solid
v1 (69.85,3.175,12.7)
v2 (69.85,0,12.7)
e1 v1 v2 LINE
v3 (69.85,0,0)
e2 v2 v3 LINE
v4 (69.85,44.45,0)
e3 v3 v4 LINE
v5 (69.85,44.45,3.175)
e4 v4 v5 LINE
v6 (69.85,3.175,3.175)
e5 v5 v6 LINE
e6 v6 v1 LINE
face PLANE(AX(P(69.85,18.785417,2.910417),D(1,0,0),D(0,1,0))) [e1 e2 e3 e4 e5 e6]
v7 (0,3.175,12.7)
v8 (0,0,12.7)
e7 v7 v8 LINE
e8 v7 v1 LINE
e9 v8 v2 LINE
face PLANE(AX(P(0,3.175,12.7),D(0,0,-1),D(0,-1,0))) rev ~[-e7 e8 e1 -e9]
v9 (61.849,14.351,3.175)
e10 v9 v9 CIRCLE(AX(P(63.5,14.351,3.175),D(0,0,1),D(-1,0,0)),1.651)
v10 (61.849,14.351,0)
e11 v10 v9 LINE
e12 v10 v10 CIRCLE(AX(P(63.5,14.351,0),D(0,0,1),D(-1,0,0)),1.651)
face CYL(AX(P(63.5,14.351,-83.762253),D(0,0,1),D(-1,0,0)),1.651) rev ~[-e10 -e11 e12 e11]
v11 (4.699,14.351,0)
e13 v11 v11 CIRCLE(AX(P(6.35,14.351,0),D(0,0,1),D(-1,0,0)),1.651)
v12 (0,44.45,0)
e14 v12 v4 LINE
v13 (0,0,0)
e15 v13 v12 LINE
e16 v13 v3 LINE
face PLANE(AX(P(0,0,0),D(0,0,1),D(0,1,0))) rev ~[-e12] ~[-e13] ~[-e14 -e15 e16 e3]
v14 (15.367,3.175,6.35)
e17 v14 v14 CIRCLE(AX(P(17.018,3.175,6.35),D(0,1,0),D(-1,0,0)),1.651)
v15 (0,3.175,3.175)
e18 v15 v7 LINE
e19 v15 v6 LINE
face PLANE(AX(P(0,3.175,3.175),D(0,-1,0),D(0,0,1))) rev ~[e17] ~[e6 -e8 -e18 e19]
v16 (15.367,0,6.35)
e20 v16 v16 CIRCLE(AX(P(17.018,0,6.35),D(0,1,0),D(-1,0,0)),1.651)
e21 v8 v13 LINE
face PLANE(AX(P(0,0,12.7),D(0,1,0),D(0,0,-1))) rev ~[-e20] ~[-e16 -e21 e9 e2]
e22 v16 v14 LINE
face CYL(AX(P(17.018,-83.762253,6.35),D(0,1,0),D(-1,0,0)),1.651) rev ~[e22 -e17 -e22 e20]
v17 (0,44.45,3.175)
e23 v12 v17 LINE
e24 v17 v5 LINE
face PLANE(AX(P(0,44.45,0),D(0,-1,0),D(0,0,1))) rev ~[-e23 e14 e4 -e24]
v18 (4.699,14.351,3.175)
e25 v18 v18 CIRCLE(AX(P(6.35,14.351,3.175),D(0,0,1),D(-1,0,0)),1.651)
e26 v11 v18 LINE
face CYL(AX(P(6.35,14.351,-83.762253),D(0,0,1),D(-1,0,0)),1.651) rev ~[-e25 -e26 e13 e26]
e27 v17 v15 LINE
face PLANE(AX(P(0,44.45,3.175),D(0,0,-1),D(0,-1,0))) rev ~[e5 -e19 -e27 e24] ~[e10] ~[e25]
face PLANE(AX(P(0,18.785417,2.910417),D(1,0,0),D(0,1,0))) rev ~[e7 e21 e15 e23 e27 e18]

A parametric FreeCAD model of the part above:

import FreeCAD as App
import Part
import Sketcher
from FreeCAD import Vector
Q = App.Units.Quantity

doc = App.newDocument("Part")
body = doc.addObject("PartDesign::Body", "Body")

# Sketch on YZ plane
sketch1 = body.newObject("Sketcher::SketchObject", "Sketch")
sketch1.AttachmentSupport = (doc.getObject("YZ_Plane"), [""])
sketch1.MapMode = "FlatFace"
sketch1.addGeometry([
    Part.LineSegment(Vector(0, 12.7, 0), Vector(0, 0, 0)),  # 0
    Part.LineSegment(Vector(0, 0, 0), Vector(44.5, 0, 0)),  # 1
    Part.LineSegment(Vector(44.5, 0, 0), Vector(44.5, 3.2, 0)),  # 2
    Part.LineSegment(Vector(44.5, 3.2, 0), Vector(3.2, 3.2, 0)),  # 3
    Part.LineSegment(Vector(3.2, 3.2, 0), Vector(3.2, 12.7, 0)),  # 4
    Part.LineSegment(Vector(3.2, 12.7, 0), Vector(0, 12.7, 0)),  # 5
], False)
sketch1.addConstraint([
    Sketcher.Constraint("Coincident", 0, 2, 1, 1),
    Sketcher.Constraint("Coincident", 1, 2, 2, 1),
    Sketcher.Constraint("Coincident", 2, 2, 3, 1),
    Sketcher.Constraint("Coincident", 3, 2, 4, 1),
    Sketcher.Constraint("Coincident", 4, 2, 5, 1),
    Sketcher.Constraint("Coincident", 5, 2, 0, 1),
    Sketcher.Constraint("Vertical", 0),
    Sketcher.Constraint("Horizontal", 1),
    Sketcher.Constraint("Vertical", 2),
    Sketcher.Constraint("Horizontal", 3),
    Sketcher.Constraint("Vertical", 4),
    Sketcher.Constraint("Horizontal", 5),
    Sketcher.Constraint("Coincident", 0, 2, -1, 1),
    Sketcher.Constraint("Equal", 5, 2),
    Sketcher.Constraint("DistanceY", 0, 2, 0, 1, Q("0.5 in")),
    Sketcher.Constraint("DistanceX", 1, 1, 1, 2, Q("1.75 in")),
    Sketcher.Constraint("DistanceX", 3, 2, 3, 1, Q("1.625 in")),
])
pad1 = body.newObject("PartDesign::Pad", "Pad")
pad1.Profile = sketch1
pad1.Length = Q("2.75 in")

# Sketch on XY plane
sketch2 = body.newObject("Sketcher::SketchObject", "Sketch001")
sketch2.AttachmentSupport = (doc.getObject("XY_Plane"), [""])
sketch2.MapMode = "FlatFace"
sketch2.addGeometry([
    Part.Circle(Vector(6.3, 14.4, 0), Vector(0, 0, 1), 1.7),
    Part.Circle(Vector(63.5, 14.4, 0), Vector(0, 0, 1), 1.7),
], False)
sketch2.addConstraint([
    Sketcher.Constraint("Equal", 0, 1),
    Sketcher.Constraint("Horizontal", 0, 3, 1, 3),
    Sketcher.Constraint("Diameter", 0, Q("0.13 in")),
    Sketcher.Constraint("DistanceX", -1, 1, 1, 3, Q("2.5 in")),
    Sketcher.Constraint("DistanceX", -1, 1, 0, 3, Q("0.25 in")),
    Sketcher.Constraint("DistanceY", -1, 1, 0, 3, Q("0.565 in")),
])
doc.recompute()
hole = body.newObject("PartDesign::Hole", "Hole")
hole.Profile = sketch2
hole.ThreadType = "None"
hole.Diameter = Q("0.13 in")
hole.DepthType = "ThroughAll"
hole.Reversed = True

# Sketch on XZ plane
sketch3 = body.newObject("Sketcher::SketchObject", "Sketch002")
sketch3.AttachmentSupport = (doc.getObject("XZ_Plane"), [""])
sketch3.MapMode = "FlatFace"
sketch3.addGeometry(Part.Circle(Vector(17, 6.3, 0), Vector(0, 0, 1), 1.7), False)
sketch3.addConstraint([
    Sketcher.Constraint("Diameter", 0, Q("0.13 in")),
    Sketcher.Constraint("DistanceX", -1, 1, 0, 3, Q("0.67 in")),
    Sketcher.Constraint("DistanceY", -1, 1, 0, 3, Q("0.25 in")),
])
doc.recompute()
hole2 = body.newObject("PartDesign::Hole", "Hole001")
hole2.Profile = sketch3
hole2.ThreadType = "None"
hole2.Diameter = Q("0.13 in")
hole2.DepthType = "ThroughAll"

doc.recompute()
